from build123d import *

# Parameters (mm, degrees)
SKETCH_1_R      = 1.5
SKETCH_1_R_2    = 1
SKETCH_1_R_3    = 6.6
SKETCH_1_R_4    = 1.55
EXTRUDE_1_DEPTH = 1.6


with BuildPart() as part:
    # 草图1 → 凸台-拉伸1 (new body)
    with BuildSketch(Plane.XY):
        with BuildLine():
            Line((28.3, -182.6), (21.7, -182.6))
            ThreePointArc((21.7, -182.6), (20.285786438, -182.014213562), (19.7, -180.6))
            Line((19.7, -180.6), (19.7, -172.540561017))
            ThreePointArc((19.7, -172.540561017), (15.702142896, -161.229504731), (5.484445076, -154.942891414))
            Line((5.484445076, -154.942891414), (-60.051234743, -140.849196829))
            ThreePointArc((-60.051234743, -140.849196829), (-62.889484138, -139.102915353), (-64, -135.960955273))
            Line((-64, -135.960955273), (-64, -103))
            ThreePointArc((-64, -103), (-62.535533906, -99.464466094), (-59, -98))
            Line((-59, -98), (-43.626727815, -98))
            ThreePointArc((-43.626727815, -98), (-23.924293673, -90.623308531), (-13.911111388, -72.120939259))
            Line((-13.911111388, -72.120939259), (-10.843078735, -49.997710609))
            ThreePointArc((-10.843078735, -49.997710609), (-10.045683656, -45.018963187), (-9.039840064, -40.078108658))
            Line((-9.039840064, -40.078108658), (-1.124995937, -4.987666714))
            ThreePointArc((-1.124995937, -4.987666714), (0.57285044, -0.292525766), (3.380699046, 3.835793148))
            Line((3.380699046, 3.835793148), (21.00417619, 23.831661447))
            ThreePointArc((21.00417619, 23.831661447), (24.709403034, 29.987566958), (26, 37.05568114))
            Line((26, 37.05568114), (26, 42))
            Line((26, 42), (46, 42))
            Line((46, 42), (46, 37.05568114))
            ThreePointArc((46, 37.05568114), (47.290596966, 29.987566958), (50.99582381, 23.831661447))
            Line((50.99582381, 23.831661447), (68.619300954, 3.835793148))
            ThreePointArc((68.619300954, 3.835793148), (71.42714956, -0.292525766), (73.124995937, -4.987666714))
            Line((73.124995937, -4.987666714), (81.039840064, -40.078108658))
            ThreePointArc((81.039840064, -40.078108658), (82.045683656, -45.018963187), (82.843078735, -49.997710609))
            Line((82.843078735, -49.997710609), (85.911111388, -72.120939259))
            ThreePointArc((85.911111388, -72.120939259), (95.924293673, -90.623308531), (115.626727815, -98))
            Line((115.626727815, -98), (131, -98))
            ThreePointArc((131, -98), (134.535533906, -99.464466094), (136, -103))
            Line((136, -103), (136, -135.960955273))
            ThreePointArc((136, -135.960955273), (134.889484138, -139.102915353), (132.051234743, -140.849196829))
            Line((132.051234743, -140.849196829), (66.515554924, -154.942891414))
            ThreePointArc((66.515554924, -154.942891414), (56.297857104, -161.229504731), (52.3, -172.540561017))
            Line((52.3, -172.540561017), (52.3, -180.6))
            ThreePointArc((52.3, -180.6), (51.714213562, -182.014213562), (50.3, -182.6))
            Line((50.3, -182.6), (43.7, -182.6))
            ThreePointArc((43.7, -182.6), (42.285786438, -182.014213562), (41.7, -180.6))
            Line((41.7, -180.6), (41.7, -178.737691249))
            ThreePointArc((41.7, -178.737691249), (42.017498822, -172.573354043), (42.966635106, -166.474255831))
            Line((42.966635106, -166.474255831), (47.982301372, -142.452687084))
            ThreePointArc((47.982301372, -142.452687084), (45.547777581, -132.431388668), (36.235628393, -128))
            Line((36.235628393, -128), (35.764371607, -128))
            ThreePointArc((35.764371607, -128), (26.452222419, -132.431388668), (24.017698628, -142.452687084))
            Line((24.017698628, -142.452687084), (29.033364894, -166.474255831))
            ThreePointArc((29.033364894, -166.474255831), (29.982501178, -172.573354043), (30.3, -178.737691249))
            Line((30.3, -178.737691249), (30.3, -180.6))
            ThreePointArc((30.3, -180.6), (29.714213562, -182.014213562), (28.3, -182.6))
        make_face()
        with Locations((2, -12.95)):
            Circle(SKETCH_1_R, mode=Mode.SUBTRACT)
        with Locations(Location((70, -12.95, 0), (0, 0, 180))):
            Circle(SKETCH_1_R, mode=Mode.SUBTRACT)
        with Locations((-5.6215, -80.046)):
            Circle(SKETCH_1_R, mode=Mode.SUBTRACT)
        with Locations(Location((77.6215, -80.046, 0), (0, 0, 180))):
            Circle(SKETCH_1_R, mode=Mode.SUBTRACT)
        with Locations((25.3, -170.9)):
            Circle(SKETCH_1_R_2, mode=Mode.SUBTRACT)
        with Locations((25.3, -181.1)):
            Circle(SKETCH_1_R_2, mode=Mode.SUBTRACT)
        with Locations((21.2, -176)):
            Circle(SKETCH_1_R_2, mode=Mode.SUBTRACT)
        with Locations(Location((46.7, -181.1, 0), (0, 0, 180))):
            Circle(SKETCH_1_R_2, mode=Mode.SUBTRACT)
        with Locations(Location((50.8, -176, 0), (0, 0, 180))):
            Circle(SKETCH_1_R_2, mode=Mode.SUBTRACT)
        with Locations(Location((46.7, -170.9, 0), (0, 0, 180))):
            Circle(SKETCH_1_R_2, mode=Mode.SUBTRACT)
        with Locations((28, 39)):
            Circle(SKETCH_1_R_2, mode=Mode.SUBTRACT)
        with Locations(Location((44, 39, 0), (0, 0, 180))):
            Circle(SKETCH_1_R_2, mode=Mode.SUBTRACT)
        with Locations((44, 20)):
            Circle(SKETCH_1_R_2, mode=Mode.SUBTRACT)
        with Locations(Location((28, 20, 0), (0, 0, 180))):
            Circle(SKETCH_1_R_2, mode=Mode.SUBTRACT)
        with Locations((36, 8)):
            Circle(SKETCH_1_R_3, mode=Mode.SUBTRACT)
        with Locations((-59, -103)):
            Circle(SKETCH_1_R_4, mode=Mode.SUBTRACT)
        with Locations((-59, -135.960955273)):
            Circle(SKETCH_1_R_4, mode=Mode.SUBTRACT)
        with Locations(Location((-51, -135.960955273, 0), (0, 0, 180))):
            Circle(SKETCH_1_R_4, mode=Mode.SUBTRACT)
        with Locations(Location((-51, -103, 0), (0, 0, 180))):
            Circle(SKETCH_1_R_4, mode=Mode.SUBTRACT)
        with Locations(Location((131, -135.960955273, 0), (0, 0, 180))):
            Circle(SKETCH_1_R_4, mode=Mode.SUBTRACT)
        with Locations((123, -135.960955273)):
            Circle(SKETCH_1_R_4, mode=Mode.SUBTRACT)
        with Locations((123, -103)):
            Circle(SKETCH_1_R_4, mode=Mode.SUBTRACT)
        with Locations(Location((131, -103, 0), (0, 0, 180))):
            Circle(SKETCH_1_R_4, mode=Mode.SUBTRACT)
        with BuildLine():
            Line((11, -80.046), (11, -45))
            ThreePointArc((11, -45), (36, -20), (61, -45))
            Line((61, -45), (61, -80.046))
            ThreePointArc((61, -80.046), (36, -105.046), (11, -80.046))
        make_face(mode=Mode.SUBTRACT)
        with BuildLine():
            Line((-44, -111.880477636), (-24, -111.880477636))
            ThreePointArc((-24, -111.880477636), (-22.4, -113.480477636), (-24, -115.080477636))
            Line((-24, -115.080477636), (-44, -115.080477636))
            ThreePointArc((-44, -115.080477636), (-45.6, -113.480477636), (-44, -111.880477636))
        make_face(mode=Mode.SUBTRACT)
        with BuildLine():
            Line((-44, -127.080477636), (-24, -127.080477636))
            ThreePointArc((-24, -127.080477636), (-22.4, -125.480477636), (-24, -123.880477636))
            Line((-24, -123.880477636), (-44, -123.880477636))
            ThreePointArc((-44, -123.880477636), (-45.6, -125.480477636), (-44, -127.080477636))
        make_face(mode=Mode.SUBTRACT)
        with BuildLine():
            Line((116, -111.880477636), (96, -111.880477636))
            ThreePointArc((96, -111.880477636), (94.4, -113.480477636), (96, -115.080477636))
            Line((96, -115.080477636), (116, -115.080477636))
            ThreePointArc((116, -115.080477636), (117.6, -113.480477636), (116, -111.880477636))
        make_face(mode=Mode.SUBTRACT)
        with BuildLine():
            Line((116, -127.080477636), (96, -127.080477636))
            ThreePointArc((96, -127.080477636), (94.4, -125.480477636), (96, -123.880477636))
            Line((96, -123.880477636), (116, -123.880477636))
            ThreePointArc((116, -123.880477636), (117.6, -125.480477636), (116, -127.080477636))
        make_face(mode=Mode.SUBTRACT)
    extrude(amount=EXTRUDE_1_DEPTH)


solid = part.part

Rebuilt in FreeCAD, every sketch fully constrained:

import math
import FreeCAD as App
import Part
import Sketcher

V = App.Vector
Q = App.Units.Quantity

doc = App.newDocument("Part")
body = doc.addObject("PartDesign::Body", "Body")

# Sketch on XY plane
sketch1 = doc.addObject("Sketcher::SketchObject", "Sketch")
body.addObject(sketch1)
sketch1.AttachmentSupport = (doc.XY_Plane, [""])
sketch1.MapMode = "FlatFace"
sketch1.addGeometry([
    Part.LineSegment(V(21.7, -182.6, 0), V(28.3, -182.6, 0)),  # 0
    Part.ArcOfCircle(Part.Circle(V(28.3, -180.6, 0), V(0, 0, 1), 2), math.radians(-90), math.radians(0)),  # 1
    Part.LineSegment(V(30.3, -180.6, 0), V(30.3, -178.737691, 0)),  # 2
    Part.ArcOfCircle(Part.Circle(V(-29.7, -178.737691, 0), V(0, 0, 1), 60), math.radians(0), math.radians(11.793827)),  # 3
    Part.LineSegment(V(29.033365, -166.474256, 0), V(24.017699, -142.452687, 0)),  # 4
    Part.ArcOfCircle(Part.Circle(V(35.764372, -140, 0), V(0, 0, 1), 12), math.radians(90), math.radians(191.793827)),  # 5
    Part.LineSegment(V(35.764372, -128, 0), V(36.235628, -128, 0)),  # 6
    Part.ArcOfCircle(Part.Circle(V(36.235628, -140, 0), V(0, 0, 1), 12), math.radians(-11.793827), math.radians(90)),  # 7
    Part.LineSegment(V(47.982301, -142.452687, 0), V(42.966635, -166.474256, 0)),  # 8
    Part.ArcOfCircle(Part.Circle(V(101.7, -178.737691, 0), V(0, 0, 1), 60), math.radians(168.206173), math.radians(180)),  # 9
    Part.LineSegment(V(41.7, -178.737691, 0), V(41.7, -180.6, 0)),  # 10
    Part.ArcOfCircle(Part.Circle(V(43.7, -180.6, 0), V(0, 0, 1), 2), math.radians(-180), math.radians(-90)),  # 11
    Part.LineSegment(V(43.7, -182.6, 0), V(50.3, -182.6, 0)),  # 12
    Part.ArcOfCircle(Part.Circle(V(50.3, -180.6, 0), V(0, 0, 1), 2), math.radians(-90), math.radians(0)),  # 13
    Part.LineSegment(V(52.3, -180.6, 0), V(52.3, -172.540561, 0)),  # 14
    Part.ArcOfCircle(Part.Circle(V(70.3, -172.540561, 0), V(0, 0, 1), 18), math.radians(102.136824), math.radians(180)),  # 15
    Part.LineSegment(V(66.515555, -154.942891, 0), V(132.051235, -140.849197, 0)),  # 16
    Part.ArcOfCircle(Part.Circle(V(131, -135.960955, 0), V(0, 0, 1), 5), math.radians(-77.863176), math.radians(0)),  # 17
    Part.LineSegment(V(136, -135.960955, 0), V(136, -103, 0)),  # 18
    Part.ArcOfCircle(Part.Circle(V(131, -103, 0), V(0, 0, 1), 5), math.radians(0), math.radians(90)),  # 19
    Part.LineSegment(V(131, -98, 0), V(115.626728, -98, 0)),  # 20
    Part.ArcOfCircle(Part.Circle(V(115.626728, -68, 0), V(0, 0, 1), 30), math.radians(-172.104622), math.radians(-90)),  # 21
    Part.LineSegment(V(85.911111, -72.120939, 0), V(82.843079, -49.997711, 0)),  # 22
    Part.ArcOfCircle(Part.Circle(V(-36.019387, -66.481468, 0), V(0, 0, 1), 120), math.radians(7.895378), math.radians(12.710677)),  # 23
    Part.LineSegment(V(81.03984, -40.078109, 0), V(73.124996, -4.987667, 0)),  # 24
    Part.ArcOfCircle(Part.Circle(V(53.615125, -9.388227, 0), V(0, 0, 1), 20), math.radians(12.710677), math.radians(41.391531)),  # 25
    Part.LineSegment(V(68.619301, 3.835793, 0), V(50.995824, 23.831661, 0)),  # 26
    Part.ArcOfCircle(Part.Circle(V(66, 37.055681, 0), V(0, 0, 1), 20), math.radians(-180), math.radians(-138.608469)),  # 27
    Part.LineSegment(V(46, 37.055681, 0), V(46, 42, 0)),  # 28
    Part.LineSegment(V(46, 42, 0), V(26, 42, 0)),  # 29
    Part.LineSegment(V(26, 42, 0), V(26, 37.055681, 0)),  # 30
    Part.ArcOfCircle(Part.Circle(V(6, 37.055681, 0), V(0, 0, 1), 20), math.radians(-41.391531), math.radians(0)),  # 31
    Part.LineSegment(V(21.004176, 23.831661, 0), V(3.380699, 3.835793, 0)),  # 32
    Part.ArcOfCircle(Part.Circle(V(18.384875, -9.388227, 0), V(0, 0, 1), 20), math.radians(138.608469), math.radians(167.289323)),  # 33
    Part.LineSegment(V(-1.124996, -4.987667, 0), V(-9.03984, -40.078109, 0)),  # 34
    Part.ArcOfCircle(Part.Circle(V(108.019387, -66.481468, 0), V(0, 0, 1), 120), math.radians(167.289323), math.radians(172.104622)),  # 35
    Part.LineSegment(V(-10.843079, -49.997711, 0), V(-13.911111, -72.120939, 0)),  # 36
    Part.ArcOfCircle(Part.Circle(V(-43.626728, -68, 0), V(0, 0, 1), 30), math.radians(-90), math.radians(-7.895378)),  # 37
    Part.LineSegment(V(-43.626728, -98, 0), V(-59, -98, 0)),  # 38
    Part.ArcOfCircle(Part.Circle(V(-59, -103, 0), V(0, 0, 1), 5), math.radians(90), math.radians(180)),  # 39
    Part.LineSegment(V(-64, -103, 0), V(-64, -135.960955, 0)),  # 40
    Part.ArcOfCircle(Part.Circle(V(-59, -135.960955, 0), V(0, 0, 1), 5), math.radians(180), math.radians(257.863176)),  # 41
    Part.LineSegment(V(-60.051235, -140.849197, 0), V(5.484445, -154.942891, 0)),  # 42
    Part.ArcOfCircle(Part.Circle(V(1.7, -172.540561, 0), V(0, 0, 1), 18), math.radians(0), math.radians(77.863176)),  # 43
    Part.LineSegment(V(19.7, -172.540561, 0), V(19.7, -180.6, 0)),  # 44
    Part.ArcOfCircle(Part.Circle(V(21.7, -180.6, 0), V(0, 0, 1), 2), math.radians(-180), math.radians(-90)),  # 45
    Part.Circle(V(131, -135.960955, 0), V(0, 0, 1), 1.55),  # 46
    Part.Circle(V(123, -135.960955, 0), V(0, 0, 1), 1.55),  # 47
    Part.Circle(V(50.8, -176, 0), V(0, 0, 1), 1),  # 48
    Part.Circle(V(46.7, -181.1, 0), V(0, 0, 1), 1),  # 49
    Part.Circle(V(46.7, -170.9, 0), V(0, 0, 1), 1),  # 50
    Part.Circle(V(131, -103, 0), V(0, 0, 1), 1.55),  # 51
    Part.Circle(V(123, -103, 0), V(0, 0, 1), 1.55),  # 52
    Part.LineSegment(V(116, -127.080478, 0), V(96, -127.080478, 0)),  # 53
    Part.ArcOfCircle(Part.Circle(V(96, -125.480478, 0), V(0, 0, 1), 1.6), math.radians(90), math.radians(270)),  # 54
    Part.LineSegment(V(96, -123.880478, 0), V(116, -123.880478, 0)),  # 55
    Part.ArcOfCircle(Part.Circle(V(116, -125.480478, 0), V(0, 0, 1), 1.6), math.radians(-90), math.radians(90)),  # 56
    Part.ArcOfCircle(Part.Circle(V(116, -113.480478, 0), V(0, 0, 1), 1.6), math.radians(-90), math.radians(90)),  # 57
    Part.LineSegment(V(116, -115.080478, 0), V(96, -115.080478, 0)),  # 58
    Part.ArcOfCircle(Part.Circle(V(96, -113.480478, 0), V(0, 0, 1), 1.6), math.radians(90), math.radians(270)),  # 59
    Part.LineSegment(V(96, -111.880478, 0), V(116, -111.880478, 0)),  # 60
    Part.Circle(V(77.6215, -80.046, 0), V(0, 0, 1), 1.5),  # 61
    Part.Circle(V(25.3, -181.1, 0), V(0, 0, 1), 1),  # 62
    Part.Circle(V(25.3, -170.9, 0), V(0, 0, 1), 1),  # 63
    Part.Circle(V(21.2, -176, 0), V(0, 0, 1), 1),  # 64
    Part.Circle(V(-51, -135.960955, 0), V(0, 0, 1), 1.55),  # 65
    Part.Circle(V(-59, -135.960955, 0), V(0, 0, 1), 1.55),  # 66
    Part.Circle(V(-5.6215, -80.046, 0), V(0, 0, 1), 1.5),  # 67
    Part.ArcOfCircle(Part.Circle(V(-44, -125.480478, 0), V(0, 0, 1), 1.6), math.radians(90), math.radians(270)),  # 68
    Part.LineSegment(V(-44, -123.880478, 0), V(-24, -123.880478, 0)),  # 69
    Part.ArcOfCircle(Part.Circle(V(-24, -125.480478, 0), V(0, 0, 1), 1.6), math.radians(-90), math.radians(90)),  # 70
    Part.LineSegment(V(-24, -127.080478, 0), V(-44, -127.080478, 0)),  # 71
    Part.LineSegment(V(-44, -111.880478, 0), V(-24, -111.880478, 0)),  # 72
    Part.ArcOfCircle(Part.Circle(V(-24, -113.480478, 0), V(0, 0, 1), 1.6), math.radians(-90), math.radians(90)),  # 73
    Part.LineSegment(V(-24, -115.080478, 0), V(-44, -115.080478, 0)),  # 74
    Part.ArcOfCircle(Part.Circle(V(-44, -113.480478, 0), V(0, 0, 1), 1.6), math.radians(90), math.radians(270)),  # 75
    Part.Circle(V(-51, -103, 0), V(0, 0, 1), 1.55),  # 76
    Part.Circle(V(-59, -103, 0), V(0, 0, 1), 1.55),  # 77
    Part.Circle(V(70, -12.95, 0), V(0, 0, 1), 1.5),  # 78
    Part.Circle(V(44, 20, 0), V(0, 0, 1), 1),  # 79
    Part.Circle(V(44, 39, 0), V(0, 0, 1), 1),  # 80
    Part.LineSegment(V(11, -80.046, 0), V(11, -45, 0)),  # 81
    Part.ArcOfCircle(Part.Circle(V(36, -45, 0), V(0, 0, 1), 25), math.radians(0), math.radians(180)),  # 82
    Part.LineSegment(V(61, -45, 0), V(61, -80.046, 0)),  # 83
    Part.ArcOfCircle(Part.Circle(V(36, -80.046, 0), V(0, 0, 1), 25), math.radians(180), math.radians(360)),  # 84
    Part.Circle(V(36, 8, 0), V(0, 0, 1), 6.6),  # 85
    Part.Circle(V(2, -12.95, 0), V(0, 0, 1), 1.5),  # 86
    Part.Circle(V(28, 20, 0), V(0, 0, 1), 1),  # 87
    Part.Circle(V(28, 39, 0), V(0, 0, 1), 1),  # 88
], False)
sketch1.addConstraint([
    Sketcher.Constraint("Coincident", 0, 2, 1, 1),
    Sketcher.Constraint("Coincident", 1, 2, 2, 1),
    Sketcher.Constraint("Coincident", 2, 2, 3, 1),
    Sketcher.Constraint("Coincident", 3, 2, 4, 1),
    Sketcher.Constraint("Coincident", 4, 2, 5, 2),
    Sketcher.Constraint("Coincident", 5, 1, 6, 1),
    Sketcher.Constraint("Coincident", 6, 2, 7, 2),
    Sketcher.Constraint("Coincident", 7, 1, 8, 1),
    Sketcher.Constraint("Coincident", 8, 2, 9, 1),
    Sketcher.Constraint("Coincident", 9, 2, 10, 1),
    Sketcher.Constraint("Coincident", 10, 2, 11, 1),
    Sketcher.Constraint("Coincident", 11, 2, 12, 1),
    Sketcher.Constraint("Coincident", 12, 2, 13, 1),
    Sketcher.Constraint("Coincident", 13, 2, 14, 1),
    Sketcher.Constraint("Coincident", 14, 2, 15, 2),
    Sketcher.Constraint("Coincident", 15, 1, 16, 1),
    Sketcher.Constraint("Coincident", 16, 2, 17, 1),
    Sketcher.Constraint("Coincident", 17, 2, 18, 1),
    Sketcher.Constraint("Coincident", 18, 2, 19, 1),
    Sketcher.Constraint("Coincident", 19, 2, 20, 1),
    Sketcher.Constraint("Coincident", 20, 2, 21, 2),
    Sketcher.Constraint("Coincident", 21, 1, 22, 1),
    Sketcher.Constraint("Coincident", 22, 2, 23, 1),
    Sketcher.Constraint("Coincident", 23, 2, 24, 1),
    Sketcher.Constraint("Coincident", 24, 2, 25, 1),
    Sketcher.Constraint("Coincident", 25, 2, 26, 1),
    Sketcher.Constraint("Coincident", 26, 2, 27, 2),
    Sketcher.Constraint("Coincident", 27, 1, 28, 1),
    Sketcher.Constraint("Coincident", 28, 2, 29, 1),
    Sketcher.Constraint("Coincident", 29, 2, 30, 1),
    Sketcher.Constraint("Coincident", 30, 2, 31, 2),
    Sketcher.Constraint("Coincident", 31, 1, 32, 1),
    Sketcher.Constraint("Coincident", 32, 2, 33, 1),
    Sketcher.Constraint("Coincident", 33, 2, 34, 1),
    Sketcher.Constraint("Coincident", 34, 2, 35, 1),
    Sketcher.Constraint("Coincident", 35, 2, 36, 1),
    Sketcher.Constraint("Coincident", 36, 2, 37, 2),
    Sketcher.Constraint("Coincident", 37, 1, 38, 1),
    Sketcher.Constraint("Coincident", 38, 2, 39, 1),
    Sketcher.Constraint("Coincident", 39, 2, 40, 1),
    Sketcher.Constraint("Coincident", 40, 2, 41, 1),
    Sketcher.Constraint("Coincident", 41, 2, 42, 1),
    Sketcher.Constraint("Coincident", 42, 2, 43, 2),
    Sketcher.Constraint("Coincident", 43, 1, 44, 1),
    Sketcher.Constraint("Coincident", 44, 2, 45, 1),
    Sketcher.Constraint("Coincident", 45, 2, 0, 1),
    Sketcher.Constraint("Coincident", 53, 2, 54, 2),
    Sketcher.Constraint("Coincident", 54, 1, 55, 1),
    Sketcher.Constraint("Coincident", 55, 2, 56, 2),
    Sketcher.Constraint("Coincident", 56, 1, 53, 1),
    Sketcher.Constraint("Coincident", 57, 1, 58, 1),
    Sketcher.Constraint("Coincident", 58, 2, 59, 2),
    Sketcher.Constraint("Coincident", 59, 1, 60, 1),
    Sketcher.Constraint("Coincident", 60, 2, 57, 2),
    Sketcher.Constraint("Coincident", 68, 1, 69, 1),
    Sketcher.Constraint("Coincident", 69, 2, 70, 2),
    Sketcher.Constraint("Coincident", 70, 1, 71, 1),
    Sketcher.Constraint("Coincident", 71, 2, 68, 2),
    Sketcher.Constraint("Coincident", 72, 2, 73, 2),
    Sketcher.Constraint("Coincident", 73, 1, 74, 1),
    Sketcher.Constraint("Coincident", 74, 2, 75, 2),
    Sketcher.Constraint("Coincident", 75, 1, 72, 1),
    Sketcher.Constraint("Coincident", 81, 2, 82, 2),
    Sketcher.Constraint("Coincident", 82, 1, 83, 1),
    Sketcher.Constraint("Coincident", 83, 2, 84, 2),
    Sketcher.Constraint("Coincident", 84, 1, 81, 1),
    Sketcher.Constraint("Horizontal", 0),
    Sketcher.Constraint("Vertical", 2),
    Sketcher.Constraint("Horizontal", 6),
    Sketcher.Constraint("Vertical", 10),
    Sketcher.Constraint("Horizontal", 12),
    Sketcher.Constraint("Vertical", 14),
    Sketcher.Constraint("Vertical", 18),
    Sketcher.Constraint("Horizontal", 20),
    Sketcher.Constraint("Vertical", 28),
    Sketcher.Constraint("Horizontal", 29),
    Sketcher.Constraint("Vertical", 30),
    Sketcher.Constraint("Horizontal", 38),
    Sketcher.Constraint("Vertical", 40),
    Sketcher.Constraint("Vertical", 44),
    Sketcher.Constraint("Horizontal", 53),
    Sketcher.Constraint("Horizontal", 55),
    Sketcher.Constraint("Horizontal", 58),
    Sketcher.Constraint("Horizontal", 60),
    Sketcher.Constraint("Horizontal", 69),
    Sketcher.Constraint("Horizontal", 71),
    Sketcher.Constraint("Horizontal", 72),
    Sketcher.Constraint("Horizontal", 74),
    Sketcher.Constraint("Vertical", 81),
    Sketcher.Constraint("Vertical", 83),
    Sketcher.Constraint("Coincident", 46, 3, 17, 3),
    Sketcher.Constraint("Coincident", 51, 3, 19, 3),
    Sketcher.Constraint("Coincident", 66, 3, 41, 3),
    Sketcher.Constraint("Coincident", 77, 3, 39, 3),
    Sketcher.Constraint("Diameter", 48, Q("2 mm")),
    Sketcher.Constraint("Diameter", 49, Q("2 mm")),
    Sketcher.Constraint("Diameter", 50, Q("2 mm")),
    Sketcher.Constraint("Diameter", 61, Q("3 mm")),
    Sketcher.Constraint("Diameter", 62, Q("2 mm")),
    Sketcher.Constraint("Diameter", 63, Q("2 mm")),
    Sketcher.Constraint("Diameter", 64, Q("2 mm")),
    Sketcher.Constraint("Diameter", 67, Q("3 mm")),
    Sketcher.Constraint("Diameter", 78, Q("3 mm")),
    Sketcher.Constraint("Diameter", 79, Q("2 mm")),
    Sketcher.Constraint("Diameter", 80, Q("2 mm")),
    Sketcher.Constraint("Diameter", 86, Q("3 mm")),
    Sketcher.Constraint("Diameter", 87, Q("2 mm")),
    Sketcher.Constraint("Diameter", 88, Q("2 mm")),
    Sketcher.Constraint("Radius", 1, Q("2 mm")),
    Sketcher.Constraint("Radius", 3, Q("60 mm")),
    Sketcher.Constraint("Radius", 5, Q("12 mm")),
    Sketcher.Constraint("Radius", 7, Q("12 mm")),
    Sketcher.Constraint("Radius", 9, Q("60 mm")),
    Sketcher.Constraint("Radius", 11, Q("2 mm")),
    Sketcher.Constraint("Radius", 13, Q("2 mm")),
    Sketcher.Constraint("Radius", 15, Q("18 mm")),
    Sketcher.Constraint("Radius", 17, Q("5 mm")),
    Sketcher.Constraint("Radius", 19, Q("5 mm")),
    Sketcher.Constraint("Radius", 21, Q("30 mm")),
    Sketcher.Constraint("Radius", 23, Q("120 mm")),
    Sketcher.Constraint("Radius", 25, Q("20 mm")),
    Sketcher.Constraint("Radius", 27, Q("20 mm")),
    Sketcher.Constraint("Radius", 31, Q("20 mm")),
    Sketcher.Constraint("Radius", 33, Q("20 mm")),
    Sketcher.Constraint("Radius", 35, Q("120 mm")),
    Sketcher.Constraint("Radius", 37, Q("30 mm")),
    Sketcher.Constraint("Radius", 39, Q("5 mm")),
    Sketcher.Constraint("Radius", 41, Q("5 mm")),
    Sketcher.Constraint("Radius", 43, Q("18 mm")),
    Sketcher.Constraint("Radius", 45, Q("2 mm")),
    Sketcher.Constraint("Radius", 82, Q("25 mm")),
    Sketcher.Constraint("Diameter", 46, Q("3.1 mm")),
    Sketcher.Constraint("Diameter", 47, Q("3.1 mm")),
    Sketcher.Constraint("Diameter", 51, Q("3.1 mm")),
    Sketcher.Constraint("Diameter", 52, Q("3.1 mm")),
    Sketcher.Constraint("Diameter", 65, Q("3.1 mm")),
    Sketcher.Constraint("Diameter", 66, Q("3.1 mm")),
    Sketcher.Constraint("Diameter", 76, Q("3.1 mm")),
    Sketcher.Constraint("Diameter", 77, Q("3.1 mm")),
    Sketcher.Constraint("Diameter", 85, Q("13.2 mm")),
    Sketcher.Constraint("Radius", 54, Q("1.6 mm")),
    Sketcher.Constraint("Radius", 57, Q("1.6 mm")),
    Sketcher.Constraint("Radius", 68, Q("1.6 mm")),
    Sketcher.Constraint("Radius", 73, Q("1.6 mm")),
    Sketcher.Constraint("DistanceX", 29, 2, 29, 1, Q("20 mm")),
    Sketcher.Constraint("DistanceX", 53, 2, 53, 1, Q("20 mm")),
    Sketcher.Constraint("DistanceX", 55, 1, 55, 2, Q("20 mm")),
    Sketcher.Constraint("DistanceX", 58, 2, 58, 1, Q("20 mm")),
    Sketcher.Constraint("DistanceX", 60, 1, 60, 2, Q("20 mm")),
    Sketcher.Constraint("DistanceX", 69, 1, 69, 2, Q("20 mm")),
    Sketcher.Constraint("DistanceX", 71, 2, 71, 1, Q("20 mm")),
    Sketcher.Constraint("DistanceX", 72, 1, 72, 2, Q("20 mm")),
    Sketcher.Constraint("DistanceX", 74, 2, 74, 1, Q("20 mm")),
    Sketcher.Constraint("DistanceX", 0, 1, 0, 2, Q("6.6 mm")),
    Sketcher.Constraint("DistanceX", 12, 1, 12, 2, Q("6.6 mm")),
    Sketcher.Constraint("DistanceY", 5, 3, -1, 1, Q("140 mm")),
    Sketcher.Constraint("DistanceX", -1, 1, 17, 3, Q("131 mm")),
    Sketcher.Constraint("DistanceY", 19, 3, -1, 1, Q("103 mm")),
    Sketcher.Constraint("DistanceX", -1, 1, 27, 3, Q("66 mm")),
    Sketcher.Constraint("DistanceY", 37, 3, -1, 1, Q("68 mm")),
    Sketcher.Constraint("DistanceX", 39, 3, -1, 1, Q("59 mm")),
    Sketcher.Constraint("DistanceX", -1, 1, 47, 3, Q("123 mm")),
    Sketcher.Constraint("DistanceY", 48, 3, -1, 1, Q("176 mm")),
    Sketcher.Constraint("DistanceX", -1, 1, 52, 3, Q("123 mm")),
    Sketcher.Constraint("DistanceY", 52, 3, -1, 1, Q("103 mm")),
    Sketcher.Constraint("DistanceX", -1, 1, 54, 3, Q("96 mm")),
    Sketcher.Constraint("DistanceX", -1, 1, 56, 3, Q("116 mm")),
    Sketcher.Constraint("DistanceX", -1, 1, 57, 3, Q("116 mm")),
    Sketcher.Constraint("DistanceX", -1, 1, 59, 3, Q("96 mm")),
    Sketcher.Constraint("DistanceY", 64, 3, -1, 1, Q("176 mm")),
    Sketcher.Constraint("DistanceX", 65, 3, -1, 1, Q("51 mm")),
    Sketcher.Constraint("DistanceX", 68, 3, -1, 1, Q("44 mm")),
    Sketcher.Constraint("DistanceX", 70, 3, -1, 1, Q("24 mm")),
    Sketcher.Constraint("DistanceX", 73, 3, -1, 1, Q("24 mm")),
    Sketcher.Constraint("DistanceX", 75, 3, -1, 1, Q("44 mm")),
    Sketcher.Constraint("DistanceX", 76, 3, -1, 1, Q("51 mm")),
    Sketcher.Constraint("DistanceY", 76, 3, -1, 1, Q("103 mm")),
    Sketcher.Constraint("DistanceX", -1, 1, 78, 3, Q("70 mm")),
    Sketcher.Constraint("DistanceX", -1, 1, 79, 3, Q("44 mm")),
    Sketcher.Constraint("DistanceY", -1, 1, 79, 3, Q("20 mm")),
    Sketcher.Constraint("DistanceX", -1, 1, 80, 3, Q("44 mm")),
    Sketcher.Constraint("DistanceY", -1, 1, 80, 3, Q("39 mm")),
    Sketcher.Constraint("DistanceX", -1, 1, 82, 3, Q("36 mm")),
    Sketcher.Constraint("DistanceY", 82, 3, -1, 1, Q("45 mm")),
    Sketcher.Constraint("DistanceX", -1, 1, 85, 3, Q("36 mm")),
    Sketcher.Constraint("DistanceY", -1, 1, 85, 3, Q("8 mm")),
    Sketcher.Constraint("DistanceX", -1, 1, 86, 3, Q("2 mm")),
    Sketcher.Constraint("DistanceX", -1, 1, 87, 3, Q("28 mm")),
    Sketcher.Constraint("DistanceY", -1, 1, 87, 3, Q("20 mm")),
    Sketcher.Constraint("DistanceX", -1, 1, 88, 3, Q("28 mm")),
    Sketcher.Constraint("DistanceY", -1, 1, 88, 3, Q("39 mm")),
    Sketcher.Constraint("DistanceY", 18, 2, -1, 1, Q("103 mm")),
    Sketcher.Constraint("DistanceX", -1, 1, 19, 2, Q("131 mm")),
    Sketcher.Constraint("DistanceY", -1, 1, 28, 2, Q("42 mm")),
    Sketcher.Constraint("DistanceX", 38, 2, -1, 1, Q("59 mm")),
    Sketcher.Constraint("DistanceY", 39, 2, -1, 1, Q("103 mm")),
    Sketcher.Constraint("DistanceX", -1, 1, 53, 2, Q("96 mm")),
    Sketcher.Constraint("DistanceX", -1, 1, 54, 1, Q("96 mm")),
    Sketcher.Constraint("DistanceX", -1, 1, 57, 1, Q("116 mm")),
    Sketcher.Constraint("DistanceX", -1, 1, 59, 1, Q("96 mm")),
    Sketcher.Constraint("DistanceX", 68, 1, -1, 1, Q("44 mm")),
    Sketcher.Constraint("DistanceX", 70, 1, -1, 1, Q("24 mm")),
    Sketcher.Constraint("DistanceX", 72, 2, -1, 1, Q("24 mm")),
    Sketcher.Constraint("DistanceX", 73, 1, -1, 1, Q("24 mm")),
    Sketcher.Constraint("DistanceY", 81, 2, -1, 1, Q("45 mm")),
    Sketcher.Constraint("DistanceY", 82, 1, -1, 1, Q("45 mm")),
    Sketcher.Constraint("DistanceX", -1, 1, 1, 3, Q("28.3 mm")),
    Sketcher.Constraint("DistanceY", 1, 3, -1, 1, Q("180.6 mm")),
    Sketcher.Constraint("DistanceX", -1, 1, 9, 3, Q("101.7 mm")),
    Sketcher.Constraint("DistanceY", 11, 3, -1, 1, Q("180.6 mm")),
    Sketcher.Constraint("DistanceX", -1, 1, 13, 3, Q("50.3 mm")),
    Sketcher.Constraint("DistanceX", -1, 1, 43, 3, Q("1.7 mm")),
    Sketcher.Constraint("DistanceX", -1, 1, 48, 3, Q("50.8 mm")),
    Sketcher.Constraint("DistanceX", -1, 1, 49, 3, Q("46.7 mm")),
    Sketcher.Constraint("DistanceY", 49, 3, -1, 1, Q("181.1 mm")),
    Sketcher.Constraint("DistanceX", -1, 1, 50, 3, Q("46.7 mm")),
    Sketcher.Constraint("DistanceY", 50, 3, -1, 1, Q("170.9 mm")),
    Sketcher.Constraint("DistanceX", -1, 1, 62, 3, Q("25.3 mm")),
    Sketcher.Constraint("DistanceY", 62, 3, -1, 1, Q("181.1 mm")),
    Sketcher.Constraint("DistanceX", -1, 1, 63, 3, Q("25.3 mm")),
    Sketcher.Constraint("DistanceY", 63, 3, -1, 1, Q("170.9 mm")),
    Sketcher.Constraint("DistanceX", -1, 1, 64, 3, Q("21.2 mm")),
    Sketcher.Constraint("DistanceX", -1, 1, 0, 2, Q("28.3 mm")),
    Sketcher.Constraint("DistanceY", 1, 2, -1, 1, Q("180.6 mm")),
    Sketcher.Constraint("DistanceY", 10, 2, -1, 1, Q("180.6 mm")),
    Sketcher.Constraint("DistanceX", -1, 1, 11, 2, Q("43.7 mm")),
    Sketcher.Constraint("DistanceY", 13, 2, -1, 1, Q("180.6 mm")),
    Sketcher.Constraint("DistanceY", 44, 2, -1, 1, Q("180.6 mm")),
    Sketcher.Constraint("DistanceY", 81, 1, 81, 2, Q("35.046 mm")),
    Sketcher.Constraint("DistanceY", 83, 2, 83, 1, Q("35.046 mm")),
    Sketcher.Constraint("DistanceY", 78, 3, -1, 1, Q("12.95 mm")),
    Sketcher.Constraint("DistanceY", 86, 3, -1, 1, Q("12.95 mm")),
    Sketcher.Constraint("DistanceY", 61, 3, -1, 1, Q("80.046 mm")),
    Sketcher.Constraint("DistanceY", 67, 3, -1, 1, Q("80.046 mm")),
    Sketcher.Constraint("DistanceY", 84, 3, -1, 1, Q("80.046 mm")),
    Sketcher.Constraint("DistanceY", 2, 1, 2, 2, Q("1.862309 mm")),
    Sketcher.Constraint("DistanceY", 10, 2, 10, 1, Q("1.862309 mm")),
    Sketcher.Constraint("DistanceY", 14, 1, 14, 2, Q("8.059439 mm")),
    Sketcher.Constraint("DistanceY", 28, 1, 28, 2, Q("4.944319 mm")),
    Sketcher.Constraint("DistanceY", 30, 2, 30, 1, Q("4.944319 mm")),
    Sketcher.Constraint("DistanceY", 44, 2, 44, 1, Q("8.059439 mm")),
    Sketcher.Constraint("DistanceX", -1, 1, 61, 3, Q("77.6215 mm")),
    Sketcher.Constraint("DistanceX", 67, 3, -1, 1, Q("5.6215 mm")),
    Sketcher.Constraint("DistanceX", -1, 1, 4, 2, Q("24.017699 mm")),
    Sketcher.Constraint("DistanceX", -1, 1, 7, 1, Q("47.982301 mm")),
    Sketcher.Constraint("DistanceX", -1, 1, 25, 2, Q("68.619301 mm")),
    Sketcher.Constraint("DistanceX", -1, 1, 32, 2, Q("3.380699 mm")),
    Sketcher.Constraint("Distance", 22, Q("22.334952 mm")),
    Sketcher.Constraint("Distance", 36, Q("22.334952 mm")),
    Sketcher.Constraint("DistanceX", 6, 1, 6, 2, Q("0.471257 mm")),
    Sketcher.Constraint("DistanceX", 20, 2, 20, 1, Q("15.373272 mm")),
    Sketcher.Constraint("DistanceX", 38, 2, 38, 1, Q("15.373272 mm")),
    Sketcher.Constraint("DistanceY", 18, 1, 18, 2, Q("32.960955 mm")),
    Sketcher.Constraint("DistanceY", 40, 2, 40, 1, Q("32.960955 mm")),
    Sketcher.Constraint("DistanceY", 3, 3, -1, 1, Q("178.737691 mm")),
    Sketcher.Constraint("DistanceX", -1, 1, 5, 3, Q("35.764372 mm")),
    Sketcher.Constraint("DistanceX", -1, 1, 7, 3, Q("36.235628 mm")),
    Sketcher.Constraint("DistanceY", 9, 3, -1, 1, Q("178.737691 mm")),
    Sketcher.Constraint("DistanceY", 15, 3, -1, 1, Q("172.540561 mm")),
    Sketcher.Constraint("DistanceY", -1, 1, 27, 3, Q("37.055681 mm")),
    Sketcher.Constraint("DistanceY", -1, 1, 31, 3, Q("37.055681 mm")),
    Sketcher.Constraint("DistanceY", 43, 3, -1, 1, Q("172.540561 mm")),
    Sketcher.Constraint("DistanceX", -1, 1, 5, 1, Q("35.764372 mm")),
    Sketcher.Constraint("DistanceY", 15, 1, -1, 1, Q("154.942891 mm")),
    Sketcher.Constraint("DistanceX", -1, 1, 21, 1, Q("85.911111 mm")),
    Sketcher.Constraint("DistanceY", 21, 1, -1, 1, Q("72.120939 mm")),
    Sketcher.Constraint("DistanceX", -1, 1, 22, 2, Q("82.843079 mm")),
    Sketcher.Constraint("DistanceX", -1, 1, 23, 2, Q("81.03984 mm")),
    Sketcher.Constraint("DistanceY", 23, 2, -1, 1, Q("40.078109 mm")),
    Sketcher.Constraint("DistanceY", -1, 1, 26, 2, Q("23.831661 mm")),
    Sketcher.Constraint("DistanceY", -1, 1, 31, 1, Q("23.831661 mm")),
    Sketcher.Constraint("DistanceX", 34, 2, -1, 1, Q("9.03984 mm")),
    Sketcher.Constraint("DistanceY", 34, 2, -1, 1, Q("40.078109 mm")),
    Sketcher.Constraint("DistanceX", 35, 2, -1, 1, Q("10.843079 mm")),
    Sketcher.Constraint("DistanceY", 35, 2, -1, 1, Q("49.997711 mm")),
    Sketcher.Constraint("DistanceX", 36, 2, -1, 1, Q("13.911111 mm")),
    Sketcher.Constraint("DistanceY", 42, 2, -1, 1, Q("154.942891 mm")),
    Sketcher.Constraint("Distance", 4, Q("24.539614 mm")),
    Sketcher.Constraint("Distance", 8, Q("24.539614 mm")),
    Sketcher.Constraint("Distance", 16, Q("67.034003 mm")),
    Sketcher.Constraint("Distance", 24, Q("35.971987 mm")),
    Sketcher.Constraint("Distance", 26, Q("26.653737 mm")),
    Sketcher.Constraint("Distance", 32, Q("26.653737 mm")),
    Sketcher.Constraint("Distance", 34, Q("35.971987 mm")),
    Sketcher.Constraint("Distance", 42, Q("67.034003 mm")),
    Sketcher.Constraint("DistanceY", 17, 3, -1, 1, Q("135.960955 mm")),
    Sketcher.Constraint("DistanceX", -1, 1, 25, 3, Q("53.615125 mm")),
    Sketcher.Constraint("DistanceX", -1, 1, 33, 3, Q("18.384875 mm")),
    Sketcher.Constraint("DistanceY", 41, 3, -1, 1, Q("135.960955 mm")),
    Sketcher.Constraint("DistanceY", 47, 3, -1, 1, Q("135.960955 mm")),
    Sketcher.Constraint("DistanceY", 54, 3, -1, 1, Q("125.480478 mm")),
    Sketcher.Constraint("DistanceY", 57, 3, -1, 1, Q("113.480478 mm")),
    Sketcher.Constraint("DistanceY", 65, 3, -1, 1, Q("135.960955 mm")),
    Sketcher.Constraint("DistanceY", 68, 3, -1, 1, Q("125.480478 mm")),
    Sketcher.Constraint("DistanceY", 73, 3, -1, 1, Q("113.480478 mm")),
])
pad1 = doc.addObject("PartDesign::Pad", "Pad")
body.addObject(pad1)
pad1.Profile = sketch1
pad1.Length = 1.6

doc.recompute()
